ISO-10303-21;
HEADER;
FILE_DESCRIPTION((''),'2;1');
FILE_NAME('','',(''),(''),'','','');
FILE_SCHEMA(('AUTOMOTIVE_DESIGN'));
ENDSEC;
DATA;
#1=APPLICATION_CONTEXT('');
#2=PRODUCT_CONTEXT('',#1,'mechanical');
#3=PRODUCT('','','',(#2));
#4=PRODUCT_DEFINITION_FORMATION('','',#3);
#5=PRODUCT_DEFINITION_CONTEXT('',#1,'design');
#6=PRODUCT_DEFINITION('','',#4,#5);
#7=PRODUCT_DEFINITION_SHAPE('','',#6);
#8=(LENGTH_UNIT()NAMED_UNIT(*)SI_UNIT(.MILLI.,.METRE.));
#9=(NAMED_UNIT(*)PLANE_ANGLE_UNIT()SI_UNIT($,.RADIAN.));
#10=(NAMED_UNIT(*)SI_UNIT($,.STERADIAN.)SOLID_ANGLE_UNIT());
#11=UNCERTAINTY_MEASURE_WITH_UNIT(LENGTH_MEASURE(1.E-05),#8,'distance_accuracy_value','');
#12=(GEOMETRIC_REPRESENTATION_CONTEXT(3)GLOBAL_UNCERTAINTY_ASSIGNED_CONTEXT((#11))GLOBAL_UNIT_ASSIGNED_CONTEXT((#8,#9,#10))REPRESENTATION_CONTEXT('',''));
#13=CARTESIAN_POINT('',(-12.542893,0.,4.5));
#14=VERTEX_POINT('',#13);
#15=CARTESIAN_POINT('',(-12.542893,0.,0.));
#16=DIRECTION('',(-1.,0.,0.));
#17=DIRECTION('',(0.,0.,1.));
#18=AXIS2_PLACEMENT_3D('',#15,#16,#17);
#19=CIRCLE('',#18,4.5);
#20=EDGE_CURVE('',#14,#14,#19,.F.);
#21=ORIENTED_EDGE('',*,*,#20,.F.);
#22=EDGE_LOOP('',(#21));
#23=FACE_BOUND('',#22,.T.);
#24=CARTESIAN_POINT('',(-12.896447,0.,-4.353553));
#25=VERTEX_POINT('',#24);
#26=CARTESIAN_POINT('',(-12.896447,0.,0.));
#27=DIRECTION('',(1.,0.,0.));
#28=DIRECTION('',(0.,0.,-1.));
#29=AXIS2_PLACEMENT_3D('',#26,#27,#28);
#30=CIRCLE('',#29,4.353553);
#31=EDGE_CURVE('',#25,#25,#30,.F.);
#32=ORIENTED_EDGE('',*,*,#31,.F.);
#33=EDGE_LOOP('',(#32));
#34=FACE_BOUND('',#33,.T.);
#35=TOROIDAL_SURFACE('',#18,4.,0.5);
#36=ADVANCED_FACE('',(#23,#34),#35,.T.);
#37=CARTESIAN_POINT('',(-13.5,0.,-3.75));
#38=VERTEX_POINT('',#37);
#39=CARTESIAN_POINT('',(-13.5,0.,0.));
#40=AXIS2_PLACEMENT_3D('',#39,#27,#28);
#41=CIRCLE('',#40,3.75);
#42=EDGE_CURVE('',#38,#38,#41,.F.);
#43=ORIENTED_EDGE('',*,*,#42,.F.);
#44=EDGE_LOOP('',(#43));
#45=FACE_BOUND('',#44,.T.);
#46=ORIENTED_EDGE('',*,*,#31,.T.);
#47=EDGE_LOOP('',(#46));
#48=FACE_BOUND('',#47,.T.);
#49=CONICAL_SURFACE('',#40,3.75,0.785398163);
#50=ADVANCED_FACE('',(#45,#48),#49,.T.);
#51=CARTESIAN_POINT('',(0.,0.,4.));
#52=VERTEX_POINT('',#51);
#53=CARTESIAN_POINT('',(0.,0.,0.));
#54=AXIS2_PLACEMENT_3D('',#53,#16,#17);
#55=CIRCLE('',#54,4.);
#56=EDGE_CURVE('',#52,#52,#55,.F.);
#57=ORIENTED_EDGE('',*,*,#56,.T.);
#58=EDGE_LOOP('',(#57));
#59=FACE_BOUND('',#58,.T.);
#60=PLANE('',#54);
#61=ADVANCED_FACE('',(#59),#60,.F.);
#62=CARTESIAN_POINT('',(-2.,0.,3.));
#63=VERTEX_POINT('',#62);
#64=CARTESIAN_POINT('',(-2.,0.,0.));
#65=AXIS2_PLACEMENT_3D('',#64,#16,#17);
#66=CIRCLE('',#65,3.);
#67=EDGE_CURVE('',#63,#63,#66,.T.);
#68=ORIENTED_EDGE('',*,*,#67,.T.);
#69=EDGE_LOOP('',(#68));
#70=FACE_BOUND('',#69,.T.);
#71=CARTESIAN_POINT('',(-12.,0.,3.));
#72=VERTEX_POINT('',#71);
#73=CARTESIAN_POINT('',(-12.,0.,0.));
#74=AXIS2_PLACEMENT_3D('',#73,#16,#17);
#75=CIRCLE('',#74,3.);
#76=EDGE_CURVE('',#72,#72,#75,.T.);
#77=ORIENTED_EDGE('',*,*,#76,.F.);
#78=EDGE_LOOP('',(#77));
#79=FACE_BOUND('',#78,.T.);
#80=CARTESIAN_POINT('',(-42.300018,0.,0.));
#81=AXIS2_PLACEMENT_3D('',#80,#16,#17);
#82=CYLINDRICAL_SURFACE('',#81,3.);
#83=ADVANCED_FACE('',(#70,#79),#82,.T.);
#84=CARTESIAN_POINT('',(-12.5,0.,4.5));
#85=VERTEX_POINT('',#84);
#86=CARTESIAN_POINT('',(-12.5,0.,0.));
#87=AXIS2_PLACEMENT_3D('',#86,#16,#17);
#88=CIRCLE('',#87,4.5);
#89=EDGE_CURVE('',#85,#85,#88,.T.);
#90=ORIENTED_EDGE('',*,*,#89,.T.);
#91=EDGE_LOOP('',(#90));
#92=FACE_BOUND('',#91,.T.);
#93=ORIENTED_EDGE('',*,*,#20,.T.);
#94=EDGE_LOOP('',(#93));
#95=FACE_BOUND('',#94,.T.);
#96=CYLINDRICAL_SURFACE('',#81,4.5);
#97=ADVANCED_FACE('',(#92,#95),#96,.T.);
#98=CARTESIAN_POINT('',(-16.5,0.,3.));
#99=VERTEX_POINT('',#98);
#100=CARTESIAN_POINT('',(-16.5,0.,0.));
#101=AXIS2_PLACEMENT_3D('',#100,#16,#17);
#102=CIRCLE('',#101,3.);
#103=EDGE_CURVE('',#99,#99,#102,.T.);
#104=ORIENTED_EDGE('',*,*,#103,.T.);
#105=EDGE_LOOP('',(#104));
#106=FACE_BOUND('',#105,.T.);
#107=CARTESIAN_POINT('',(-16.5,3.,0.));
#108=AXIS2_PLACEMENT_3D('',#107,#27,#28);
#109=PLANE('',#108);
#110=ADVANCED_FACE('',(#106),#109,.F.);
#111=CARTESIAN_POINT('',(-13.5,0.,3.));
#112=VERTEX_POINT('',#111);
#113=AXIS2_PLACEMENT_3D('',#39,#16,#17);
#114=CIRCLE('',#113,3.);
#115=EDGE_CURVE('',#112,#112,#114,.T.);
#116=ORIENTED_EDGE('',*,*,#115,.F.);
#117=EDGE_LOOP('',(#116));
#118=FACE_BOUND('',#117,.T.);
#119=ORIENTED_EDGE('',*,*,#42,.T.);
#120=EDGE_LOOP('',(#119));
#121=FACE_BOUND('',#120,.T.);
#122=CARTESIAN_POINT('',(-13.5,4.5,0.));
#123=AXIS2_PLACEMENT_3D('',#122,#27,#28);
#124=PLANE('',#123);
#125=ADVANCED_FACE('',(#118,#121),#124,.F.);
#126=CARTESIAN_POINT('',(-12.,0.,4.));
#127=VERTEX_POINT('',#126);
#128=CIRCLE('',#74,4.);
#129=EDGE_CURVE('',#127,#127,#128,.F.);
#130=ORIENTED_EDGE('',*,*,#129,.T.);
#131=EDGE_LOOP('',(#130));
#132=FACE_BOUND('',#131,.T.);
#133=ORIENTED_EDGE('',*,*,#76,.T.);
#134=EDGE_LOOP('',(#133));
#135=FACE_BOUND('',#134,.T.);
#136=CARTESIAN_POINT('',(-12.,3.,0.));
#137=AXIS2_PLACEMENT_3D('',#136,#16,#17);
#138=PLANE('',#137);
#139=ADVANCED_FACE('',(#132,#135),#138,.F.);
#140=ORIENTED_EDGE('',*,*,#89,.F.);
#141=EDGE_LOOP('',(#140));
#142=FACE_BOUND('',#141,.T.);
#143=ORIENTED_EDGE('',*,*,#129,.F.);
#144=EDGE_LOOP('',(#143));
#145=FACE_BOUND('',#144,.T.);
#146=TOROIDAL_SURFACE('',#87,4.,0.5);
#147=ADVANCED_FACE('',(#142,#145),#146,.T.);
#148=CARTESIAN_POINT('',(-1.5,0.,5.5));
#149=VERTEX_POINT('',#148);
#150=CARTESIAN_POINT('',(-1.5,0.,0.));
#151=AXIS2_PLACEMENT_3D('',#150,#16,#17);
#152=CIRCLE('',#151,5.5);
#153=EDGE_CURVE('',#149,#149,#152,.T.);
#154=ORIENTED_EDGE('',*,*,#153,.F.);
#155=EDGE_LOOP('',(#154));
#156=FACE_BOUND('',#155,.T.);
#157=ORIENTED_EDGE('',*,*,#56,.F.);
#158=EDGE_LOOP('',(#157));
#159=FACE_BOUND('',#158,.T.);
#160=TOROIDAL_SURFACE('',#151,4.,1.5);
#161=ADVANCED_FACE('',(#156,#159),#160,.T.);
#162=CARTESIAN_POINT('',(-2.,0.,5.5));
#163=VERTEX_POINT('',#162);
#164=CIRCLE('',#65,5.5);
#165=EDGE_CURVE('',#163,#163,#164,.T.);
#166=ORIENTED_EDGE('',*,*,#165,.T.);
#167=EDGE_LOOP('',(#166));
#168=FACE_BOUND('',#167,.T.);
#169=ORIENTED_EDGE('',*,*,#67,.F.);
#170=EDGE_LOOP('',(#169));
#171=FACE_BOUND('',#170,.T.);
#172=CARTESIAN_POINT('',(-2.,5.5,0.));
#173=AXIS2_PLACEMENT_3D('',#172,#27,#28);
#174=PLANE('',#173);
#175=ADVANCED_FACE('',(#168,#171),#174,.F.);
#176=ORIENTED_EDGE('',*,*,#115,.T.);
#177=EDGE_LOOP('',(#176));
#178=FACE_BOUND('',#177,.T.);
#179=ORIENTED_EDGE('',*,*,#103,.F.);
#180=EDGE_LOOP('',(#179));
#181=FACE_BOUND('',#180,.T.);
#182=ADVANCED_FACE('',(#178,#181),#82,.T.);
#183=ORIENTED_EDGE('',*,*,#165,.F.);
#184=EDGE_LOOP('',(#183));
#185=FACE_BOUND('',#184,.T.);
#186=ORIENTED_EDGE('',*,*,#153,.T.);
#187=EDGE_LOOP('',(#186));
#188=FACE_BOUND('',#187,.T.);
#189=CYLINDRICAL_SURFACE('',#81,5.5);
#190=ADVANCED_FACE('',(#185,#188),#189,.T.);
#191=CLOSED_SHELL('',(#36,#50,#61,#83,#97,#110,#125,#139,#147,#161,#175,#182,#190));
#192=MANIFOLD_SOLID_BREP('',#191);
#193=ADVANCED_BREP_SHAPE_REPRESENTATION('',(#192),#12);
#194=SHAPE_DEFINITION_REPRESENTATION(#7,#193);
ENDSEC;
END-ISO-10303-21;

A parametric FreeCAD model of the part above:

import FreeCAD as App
import Part
import Sketcher

V = App.Vector


def edges_at(feature, points):
    """Names of the edges that pass closest to the given points."""
    edges = feature.Shape.Edges
    near = lambda p: min(range(len(edges)), key=lambda i: edges[i].distToShape(Part.Vertex(*p))[0])
    return sorted({f"Edge{near(p) + 1}" for p in points})


def add_polygon(sketch, points):
    """Adds a closed chain of lines whose ends are joined by coincident constraints."""
    first, n = sketch.GeometryCount, len(points)
    for a, b in zip(points, points[1:] + points[:1]):
        sketch.addGeometry(Part.LineSegment(App.Vector(*a, 0), App.Vector(*b, 0)), False)
    for i in range(n):
        sketch.addConstraint(Sketcher.Constraint("Coincident", first + i, 2, first + (i + 1) % n, 1))

doc = App.newDocument("Part")
body = doc.addObject("PartDesign::Body", "Body")

sketch1 = body.newObject("Sketcher::SketchObject", "Sketch")
sketch1.AttachmentSupport = (doc.getObject("XY_Plane"), [""])
sketch1.MapMode = "FlatFace"
add_polygon(sketch1, [(0, 0), (0, 5.5), (-2, 5.5), (-2, 3), (-12, 3), (-12, 4.5), (-13.5, 4.5), (-13.5, 3), (-16.5, 3), (-16.5, 0)])
sketch1.addConstraint(Sketcher.Constraint("Vertical", 0))
sketch1.addConstraint(Sketcher.Constraint("Horizontal", 1))
sketch1.addConstraint(Sketcher.Constraint("Vertical", 2))
sketch1.addConstraint(Sketcher.Constraint("Horizontal", 3))
sketch1.addConstraint(Sketcher.Constraint("Vertical", 4))
sketch1.addConstraint(Sketcher.Constraint("Horizontal", 5))
sketch1.addConstraint(Sketcher.Constraint("Vertical", 6))
sketch1.addConstraint(Sketcher.Constraint("Horizontal", 7))
sketch1.addConstraint(Sketcher.Constraint("Vertical", 8))
sketch1.addConstraint(Sketcher.Constraint("Horizontal", 9))
sketch1.addConstraint(Sketcher.Constraint("Coincident", 9, 2, -1, 1))
sketch1.addConstraint(Sketcher.Constraint("Horizontal", 3, 2, 6, 2))
sketch1.addConstraint(Sketcher.Constraint("Equal", 5, 4))
sketch1.addConstraint(Sketcher.Constraint("Equal", 7, 8))
sketch1.addConstraint(Sketcher.Constraint("DistanceX", 1, 2, 1, 1, 2.0))
sketch1.addConstraint(Sketcher.Constraint("DistanceX", 3, 2, 3, 1, 10.0))
sketch1.addConstraint(Sketcher.Constraint("DistanceX", 7, 2, 7, 1, 3.0))
sketch1.addConstraint(Sketcher.Constraint("DistanceX", 5, 2, 5, 1, 1.5))
sketch1.addConstraint(Sketcher.Constraint("DistanceY", 0, 1, 0, 2, 5.5))
revolution = body.newObject("PartDesign::Revolution", "Revolution")
revolution.Profile = sketch1
revolution.ReferenceAxis = (sketch1, ["H_Axis"])
revolution.Angle = 360
doc.recompute()

fillet = body.newObject("PartDesign::Fillet", "Fillet")
fillet.Base = (revolution, edges_at(revolution, [(0, 0, -5.5)]))
fillet.Radius = 1.5
doc.recompute()

chamfer = body.newObject("PartDesign::Chamfer", "Chamfer")
chamfer.Base = (fillet, edges_at(fillet, [(-13.5, 0, -4.5)]))
chamfer.Size = 0.75
doc.recompute()

fillet2 = body.newObject("PartDesign::Fillet", "Fillet001")
fillet2.Base = (chamfer, edges_at(chamfer, [(-12.75, 0, -4.5), (-12, 0, -4.5)]))
fillet2.Radius = 0.5

doc.recompute()
